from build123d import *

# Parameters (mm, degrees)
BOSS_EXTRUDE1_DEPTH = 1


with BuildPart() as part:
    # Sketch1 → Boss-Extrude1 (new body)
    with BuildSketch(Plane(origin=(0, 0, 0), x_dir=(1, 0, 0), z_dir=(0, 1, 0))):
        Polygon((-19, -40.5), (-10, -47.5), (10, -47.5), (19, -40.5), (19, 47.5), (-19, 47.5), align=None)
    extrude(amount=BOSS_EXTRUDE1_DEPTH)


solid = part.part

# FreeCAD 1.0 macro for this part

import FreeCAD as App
import Part
import Sketcher
from FreeCAD import Vector


def add_polygon(sketch, points):
    """Adds a closed chain of lines whose ends are joined by coincident constraints."""
    first, n = sketch.GeometryCount, len(points)
    for a, b in zip(points, points[1:] + points[:1]):
        sketch.addGeometry(Part.LineSegment(App.Vector(*a, 0), App.Vector(*b, 0)), False)
    for i in range(n):
        sketch.addConstraint(Sketcher.Constraint("Coincident", first + i, 2, first + (i + 1) % n, 1))

doc = App.newDocument("Part")
params = doc.addObject("Spreadsheet::Sheet", "Params")
for row, (alias, value) in enumerate([
    ("sketch1_width", "20 mm"),
    ("sketch1_width2", "38 mm"),
    ("sketch1_height", "88 mm"),
    ("pad1_length", "1 mm"),
], start=1):
    params.set(f"A{row}", alias)
    params.set(f"B{row}", "=" + value)
    params.setAlias(f"B{row}", alias)

body = doc.addObject("PartDesign::Body", "Body")

sketch1 = body.newObject("Sketcher::SketchObject", "Sketch")
sketch1.AttachmentSupport = (doc.getObject("XZ_Plane"), [""])
sketch1.MapMode = "FlatFace"
add_polygon(sketch1, [(-19, 40), (-10, 48), (10, 48), (19, 40), (19, -48), (-19, -48)])
sketch1.addConstraint([
    Sketcher.Constraint("Horizontal", 1),
    Sketcher.Constraint("Vertical", 3),
    Sketcher.Constraint("Horizontal", 4),
    Sketcher.Constraint("Vertical", 5),
    Sketcher.Constraint("Symmetric", 2, 2, 5, 2, -2),
    Sketcher.Constraint("Equal", 0, 2),
    Sketcher.Constraint("DistanceX", 1, 1, 1, 2, 20.0),
    Sketcher.Constraint("DistanceX", 4, 2, 4, 1, 38.0),
    Sketcher.Constraint("DistanceY", 3, 2, 3, 1, 88.0),
    Sketcher.Constraint("DistanceY", 2, 2, 1, 2, 7.0),
    Sketcher.Constraint("DistanceY", -1, 1, 0, 2, 47.5),
])
sketch1.setExpression("Constraints[12]", "Params.sketch1_width")
sketch1.setExpression("Constraints[13]", "Params.sketch1_width2")
sketch1.setExpression("Constraints[14]", "Params.sketch1_height")
pad1 = body.newObject("PartDesign::Pad", "Pad")
pad1.Profile = sketch1
pad1.setExpression("Length", "Params.pad1_length")
pad1.Reversed = True

doc.recompute()
